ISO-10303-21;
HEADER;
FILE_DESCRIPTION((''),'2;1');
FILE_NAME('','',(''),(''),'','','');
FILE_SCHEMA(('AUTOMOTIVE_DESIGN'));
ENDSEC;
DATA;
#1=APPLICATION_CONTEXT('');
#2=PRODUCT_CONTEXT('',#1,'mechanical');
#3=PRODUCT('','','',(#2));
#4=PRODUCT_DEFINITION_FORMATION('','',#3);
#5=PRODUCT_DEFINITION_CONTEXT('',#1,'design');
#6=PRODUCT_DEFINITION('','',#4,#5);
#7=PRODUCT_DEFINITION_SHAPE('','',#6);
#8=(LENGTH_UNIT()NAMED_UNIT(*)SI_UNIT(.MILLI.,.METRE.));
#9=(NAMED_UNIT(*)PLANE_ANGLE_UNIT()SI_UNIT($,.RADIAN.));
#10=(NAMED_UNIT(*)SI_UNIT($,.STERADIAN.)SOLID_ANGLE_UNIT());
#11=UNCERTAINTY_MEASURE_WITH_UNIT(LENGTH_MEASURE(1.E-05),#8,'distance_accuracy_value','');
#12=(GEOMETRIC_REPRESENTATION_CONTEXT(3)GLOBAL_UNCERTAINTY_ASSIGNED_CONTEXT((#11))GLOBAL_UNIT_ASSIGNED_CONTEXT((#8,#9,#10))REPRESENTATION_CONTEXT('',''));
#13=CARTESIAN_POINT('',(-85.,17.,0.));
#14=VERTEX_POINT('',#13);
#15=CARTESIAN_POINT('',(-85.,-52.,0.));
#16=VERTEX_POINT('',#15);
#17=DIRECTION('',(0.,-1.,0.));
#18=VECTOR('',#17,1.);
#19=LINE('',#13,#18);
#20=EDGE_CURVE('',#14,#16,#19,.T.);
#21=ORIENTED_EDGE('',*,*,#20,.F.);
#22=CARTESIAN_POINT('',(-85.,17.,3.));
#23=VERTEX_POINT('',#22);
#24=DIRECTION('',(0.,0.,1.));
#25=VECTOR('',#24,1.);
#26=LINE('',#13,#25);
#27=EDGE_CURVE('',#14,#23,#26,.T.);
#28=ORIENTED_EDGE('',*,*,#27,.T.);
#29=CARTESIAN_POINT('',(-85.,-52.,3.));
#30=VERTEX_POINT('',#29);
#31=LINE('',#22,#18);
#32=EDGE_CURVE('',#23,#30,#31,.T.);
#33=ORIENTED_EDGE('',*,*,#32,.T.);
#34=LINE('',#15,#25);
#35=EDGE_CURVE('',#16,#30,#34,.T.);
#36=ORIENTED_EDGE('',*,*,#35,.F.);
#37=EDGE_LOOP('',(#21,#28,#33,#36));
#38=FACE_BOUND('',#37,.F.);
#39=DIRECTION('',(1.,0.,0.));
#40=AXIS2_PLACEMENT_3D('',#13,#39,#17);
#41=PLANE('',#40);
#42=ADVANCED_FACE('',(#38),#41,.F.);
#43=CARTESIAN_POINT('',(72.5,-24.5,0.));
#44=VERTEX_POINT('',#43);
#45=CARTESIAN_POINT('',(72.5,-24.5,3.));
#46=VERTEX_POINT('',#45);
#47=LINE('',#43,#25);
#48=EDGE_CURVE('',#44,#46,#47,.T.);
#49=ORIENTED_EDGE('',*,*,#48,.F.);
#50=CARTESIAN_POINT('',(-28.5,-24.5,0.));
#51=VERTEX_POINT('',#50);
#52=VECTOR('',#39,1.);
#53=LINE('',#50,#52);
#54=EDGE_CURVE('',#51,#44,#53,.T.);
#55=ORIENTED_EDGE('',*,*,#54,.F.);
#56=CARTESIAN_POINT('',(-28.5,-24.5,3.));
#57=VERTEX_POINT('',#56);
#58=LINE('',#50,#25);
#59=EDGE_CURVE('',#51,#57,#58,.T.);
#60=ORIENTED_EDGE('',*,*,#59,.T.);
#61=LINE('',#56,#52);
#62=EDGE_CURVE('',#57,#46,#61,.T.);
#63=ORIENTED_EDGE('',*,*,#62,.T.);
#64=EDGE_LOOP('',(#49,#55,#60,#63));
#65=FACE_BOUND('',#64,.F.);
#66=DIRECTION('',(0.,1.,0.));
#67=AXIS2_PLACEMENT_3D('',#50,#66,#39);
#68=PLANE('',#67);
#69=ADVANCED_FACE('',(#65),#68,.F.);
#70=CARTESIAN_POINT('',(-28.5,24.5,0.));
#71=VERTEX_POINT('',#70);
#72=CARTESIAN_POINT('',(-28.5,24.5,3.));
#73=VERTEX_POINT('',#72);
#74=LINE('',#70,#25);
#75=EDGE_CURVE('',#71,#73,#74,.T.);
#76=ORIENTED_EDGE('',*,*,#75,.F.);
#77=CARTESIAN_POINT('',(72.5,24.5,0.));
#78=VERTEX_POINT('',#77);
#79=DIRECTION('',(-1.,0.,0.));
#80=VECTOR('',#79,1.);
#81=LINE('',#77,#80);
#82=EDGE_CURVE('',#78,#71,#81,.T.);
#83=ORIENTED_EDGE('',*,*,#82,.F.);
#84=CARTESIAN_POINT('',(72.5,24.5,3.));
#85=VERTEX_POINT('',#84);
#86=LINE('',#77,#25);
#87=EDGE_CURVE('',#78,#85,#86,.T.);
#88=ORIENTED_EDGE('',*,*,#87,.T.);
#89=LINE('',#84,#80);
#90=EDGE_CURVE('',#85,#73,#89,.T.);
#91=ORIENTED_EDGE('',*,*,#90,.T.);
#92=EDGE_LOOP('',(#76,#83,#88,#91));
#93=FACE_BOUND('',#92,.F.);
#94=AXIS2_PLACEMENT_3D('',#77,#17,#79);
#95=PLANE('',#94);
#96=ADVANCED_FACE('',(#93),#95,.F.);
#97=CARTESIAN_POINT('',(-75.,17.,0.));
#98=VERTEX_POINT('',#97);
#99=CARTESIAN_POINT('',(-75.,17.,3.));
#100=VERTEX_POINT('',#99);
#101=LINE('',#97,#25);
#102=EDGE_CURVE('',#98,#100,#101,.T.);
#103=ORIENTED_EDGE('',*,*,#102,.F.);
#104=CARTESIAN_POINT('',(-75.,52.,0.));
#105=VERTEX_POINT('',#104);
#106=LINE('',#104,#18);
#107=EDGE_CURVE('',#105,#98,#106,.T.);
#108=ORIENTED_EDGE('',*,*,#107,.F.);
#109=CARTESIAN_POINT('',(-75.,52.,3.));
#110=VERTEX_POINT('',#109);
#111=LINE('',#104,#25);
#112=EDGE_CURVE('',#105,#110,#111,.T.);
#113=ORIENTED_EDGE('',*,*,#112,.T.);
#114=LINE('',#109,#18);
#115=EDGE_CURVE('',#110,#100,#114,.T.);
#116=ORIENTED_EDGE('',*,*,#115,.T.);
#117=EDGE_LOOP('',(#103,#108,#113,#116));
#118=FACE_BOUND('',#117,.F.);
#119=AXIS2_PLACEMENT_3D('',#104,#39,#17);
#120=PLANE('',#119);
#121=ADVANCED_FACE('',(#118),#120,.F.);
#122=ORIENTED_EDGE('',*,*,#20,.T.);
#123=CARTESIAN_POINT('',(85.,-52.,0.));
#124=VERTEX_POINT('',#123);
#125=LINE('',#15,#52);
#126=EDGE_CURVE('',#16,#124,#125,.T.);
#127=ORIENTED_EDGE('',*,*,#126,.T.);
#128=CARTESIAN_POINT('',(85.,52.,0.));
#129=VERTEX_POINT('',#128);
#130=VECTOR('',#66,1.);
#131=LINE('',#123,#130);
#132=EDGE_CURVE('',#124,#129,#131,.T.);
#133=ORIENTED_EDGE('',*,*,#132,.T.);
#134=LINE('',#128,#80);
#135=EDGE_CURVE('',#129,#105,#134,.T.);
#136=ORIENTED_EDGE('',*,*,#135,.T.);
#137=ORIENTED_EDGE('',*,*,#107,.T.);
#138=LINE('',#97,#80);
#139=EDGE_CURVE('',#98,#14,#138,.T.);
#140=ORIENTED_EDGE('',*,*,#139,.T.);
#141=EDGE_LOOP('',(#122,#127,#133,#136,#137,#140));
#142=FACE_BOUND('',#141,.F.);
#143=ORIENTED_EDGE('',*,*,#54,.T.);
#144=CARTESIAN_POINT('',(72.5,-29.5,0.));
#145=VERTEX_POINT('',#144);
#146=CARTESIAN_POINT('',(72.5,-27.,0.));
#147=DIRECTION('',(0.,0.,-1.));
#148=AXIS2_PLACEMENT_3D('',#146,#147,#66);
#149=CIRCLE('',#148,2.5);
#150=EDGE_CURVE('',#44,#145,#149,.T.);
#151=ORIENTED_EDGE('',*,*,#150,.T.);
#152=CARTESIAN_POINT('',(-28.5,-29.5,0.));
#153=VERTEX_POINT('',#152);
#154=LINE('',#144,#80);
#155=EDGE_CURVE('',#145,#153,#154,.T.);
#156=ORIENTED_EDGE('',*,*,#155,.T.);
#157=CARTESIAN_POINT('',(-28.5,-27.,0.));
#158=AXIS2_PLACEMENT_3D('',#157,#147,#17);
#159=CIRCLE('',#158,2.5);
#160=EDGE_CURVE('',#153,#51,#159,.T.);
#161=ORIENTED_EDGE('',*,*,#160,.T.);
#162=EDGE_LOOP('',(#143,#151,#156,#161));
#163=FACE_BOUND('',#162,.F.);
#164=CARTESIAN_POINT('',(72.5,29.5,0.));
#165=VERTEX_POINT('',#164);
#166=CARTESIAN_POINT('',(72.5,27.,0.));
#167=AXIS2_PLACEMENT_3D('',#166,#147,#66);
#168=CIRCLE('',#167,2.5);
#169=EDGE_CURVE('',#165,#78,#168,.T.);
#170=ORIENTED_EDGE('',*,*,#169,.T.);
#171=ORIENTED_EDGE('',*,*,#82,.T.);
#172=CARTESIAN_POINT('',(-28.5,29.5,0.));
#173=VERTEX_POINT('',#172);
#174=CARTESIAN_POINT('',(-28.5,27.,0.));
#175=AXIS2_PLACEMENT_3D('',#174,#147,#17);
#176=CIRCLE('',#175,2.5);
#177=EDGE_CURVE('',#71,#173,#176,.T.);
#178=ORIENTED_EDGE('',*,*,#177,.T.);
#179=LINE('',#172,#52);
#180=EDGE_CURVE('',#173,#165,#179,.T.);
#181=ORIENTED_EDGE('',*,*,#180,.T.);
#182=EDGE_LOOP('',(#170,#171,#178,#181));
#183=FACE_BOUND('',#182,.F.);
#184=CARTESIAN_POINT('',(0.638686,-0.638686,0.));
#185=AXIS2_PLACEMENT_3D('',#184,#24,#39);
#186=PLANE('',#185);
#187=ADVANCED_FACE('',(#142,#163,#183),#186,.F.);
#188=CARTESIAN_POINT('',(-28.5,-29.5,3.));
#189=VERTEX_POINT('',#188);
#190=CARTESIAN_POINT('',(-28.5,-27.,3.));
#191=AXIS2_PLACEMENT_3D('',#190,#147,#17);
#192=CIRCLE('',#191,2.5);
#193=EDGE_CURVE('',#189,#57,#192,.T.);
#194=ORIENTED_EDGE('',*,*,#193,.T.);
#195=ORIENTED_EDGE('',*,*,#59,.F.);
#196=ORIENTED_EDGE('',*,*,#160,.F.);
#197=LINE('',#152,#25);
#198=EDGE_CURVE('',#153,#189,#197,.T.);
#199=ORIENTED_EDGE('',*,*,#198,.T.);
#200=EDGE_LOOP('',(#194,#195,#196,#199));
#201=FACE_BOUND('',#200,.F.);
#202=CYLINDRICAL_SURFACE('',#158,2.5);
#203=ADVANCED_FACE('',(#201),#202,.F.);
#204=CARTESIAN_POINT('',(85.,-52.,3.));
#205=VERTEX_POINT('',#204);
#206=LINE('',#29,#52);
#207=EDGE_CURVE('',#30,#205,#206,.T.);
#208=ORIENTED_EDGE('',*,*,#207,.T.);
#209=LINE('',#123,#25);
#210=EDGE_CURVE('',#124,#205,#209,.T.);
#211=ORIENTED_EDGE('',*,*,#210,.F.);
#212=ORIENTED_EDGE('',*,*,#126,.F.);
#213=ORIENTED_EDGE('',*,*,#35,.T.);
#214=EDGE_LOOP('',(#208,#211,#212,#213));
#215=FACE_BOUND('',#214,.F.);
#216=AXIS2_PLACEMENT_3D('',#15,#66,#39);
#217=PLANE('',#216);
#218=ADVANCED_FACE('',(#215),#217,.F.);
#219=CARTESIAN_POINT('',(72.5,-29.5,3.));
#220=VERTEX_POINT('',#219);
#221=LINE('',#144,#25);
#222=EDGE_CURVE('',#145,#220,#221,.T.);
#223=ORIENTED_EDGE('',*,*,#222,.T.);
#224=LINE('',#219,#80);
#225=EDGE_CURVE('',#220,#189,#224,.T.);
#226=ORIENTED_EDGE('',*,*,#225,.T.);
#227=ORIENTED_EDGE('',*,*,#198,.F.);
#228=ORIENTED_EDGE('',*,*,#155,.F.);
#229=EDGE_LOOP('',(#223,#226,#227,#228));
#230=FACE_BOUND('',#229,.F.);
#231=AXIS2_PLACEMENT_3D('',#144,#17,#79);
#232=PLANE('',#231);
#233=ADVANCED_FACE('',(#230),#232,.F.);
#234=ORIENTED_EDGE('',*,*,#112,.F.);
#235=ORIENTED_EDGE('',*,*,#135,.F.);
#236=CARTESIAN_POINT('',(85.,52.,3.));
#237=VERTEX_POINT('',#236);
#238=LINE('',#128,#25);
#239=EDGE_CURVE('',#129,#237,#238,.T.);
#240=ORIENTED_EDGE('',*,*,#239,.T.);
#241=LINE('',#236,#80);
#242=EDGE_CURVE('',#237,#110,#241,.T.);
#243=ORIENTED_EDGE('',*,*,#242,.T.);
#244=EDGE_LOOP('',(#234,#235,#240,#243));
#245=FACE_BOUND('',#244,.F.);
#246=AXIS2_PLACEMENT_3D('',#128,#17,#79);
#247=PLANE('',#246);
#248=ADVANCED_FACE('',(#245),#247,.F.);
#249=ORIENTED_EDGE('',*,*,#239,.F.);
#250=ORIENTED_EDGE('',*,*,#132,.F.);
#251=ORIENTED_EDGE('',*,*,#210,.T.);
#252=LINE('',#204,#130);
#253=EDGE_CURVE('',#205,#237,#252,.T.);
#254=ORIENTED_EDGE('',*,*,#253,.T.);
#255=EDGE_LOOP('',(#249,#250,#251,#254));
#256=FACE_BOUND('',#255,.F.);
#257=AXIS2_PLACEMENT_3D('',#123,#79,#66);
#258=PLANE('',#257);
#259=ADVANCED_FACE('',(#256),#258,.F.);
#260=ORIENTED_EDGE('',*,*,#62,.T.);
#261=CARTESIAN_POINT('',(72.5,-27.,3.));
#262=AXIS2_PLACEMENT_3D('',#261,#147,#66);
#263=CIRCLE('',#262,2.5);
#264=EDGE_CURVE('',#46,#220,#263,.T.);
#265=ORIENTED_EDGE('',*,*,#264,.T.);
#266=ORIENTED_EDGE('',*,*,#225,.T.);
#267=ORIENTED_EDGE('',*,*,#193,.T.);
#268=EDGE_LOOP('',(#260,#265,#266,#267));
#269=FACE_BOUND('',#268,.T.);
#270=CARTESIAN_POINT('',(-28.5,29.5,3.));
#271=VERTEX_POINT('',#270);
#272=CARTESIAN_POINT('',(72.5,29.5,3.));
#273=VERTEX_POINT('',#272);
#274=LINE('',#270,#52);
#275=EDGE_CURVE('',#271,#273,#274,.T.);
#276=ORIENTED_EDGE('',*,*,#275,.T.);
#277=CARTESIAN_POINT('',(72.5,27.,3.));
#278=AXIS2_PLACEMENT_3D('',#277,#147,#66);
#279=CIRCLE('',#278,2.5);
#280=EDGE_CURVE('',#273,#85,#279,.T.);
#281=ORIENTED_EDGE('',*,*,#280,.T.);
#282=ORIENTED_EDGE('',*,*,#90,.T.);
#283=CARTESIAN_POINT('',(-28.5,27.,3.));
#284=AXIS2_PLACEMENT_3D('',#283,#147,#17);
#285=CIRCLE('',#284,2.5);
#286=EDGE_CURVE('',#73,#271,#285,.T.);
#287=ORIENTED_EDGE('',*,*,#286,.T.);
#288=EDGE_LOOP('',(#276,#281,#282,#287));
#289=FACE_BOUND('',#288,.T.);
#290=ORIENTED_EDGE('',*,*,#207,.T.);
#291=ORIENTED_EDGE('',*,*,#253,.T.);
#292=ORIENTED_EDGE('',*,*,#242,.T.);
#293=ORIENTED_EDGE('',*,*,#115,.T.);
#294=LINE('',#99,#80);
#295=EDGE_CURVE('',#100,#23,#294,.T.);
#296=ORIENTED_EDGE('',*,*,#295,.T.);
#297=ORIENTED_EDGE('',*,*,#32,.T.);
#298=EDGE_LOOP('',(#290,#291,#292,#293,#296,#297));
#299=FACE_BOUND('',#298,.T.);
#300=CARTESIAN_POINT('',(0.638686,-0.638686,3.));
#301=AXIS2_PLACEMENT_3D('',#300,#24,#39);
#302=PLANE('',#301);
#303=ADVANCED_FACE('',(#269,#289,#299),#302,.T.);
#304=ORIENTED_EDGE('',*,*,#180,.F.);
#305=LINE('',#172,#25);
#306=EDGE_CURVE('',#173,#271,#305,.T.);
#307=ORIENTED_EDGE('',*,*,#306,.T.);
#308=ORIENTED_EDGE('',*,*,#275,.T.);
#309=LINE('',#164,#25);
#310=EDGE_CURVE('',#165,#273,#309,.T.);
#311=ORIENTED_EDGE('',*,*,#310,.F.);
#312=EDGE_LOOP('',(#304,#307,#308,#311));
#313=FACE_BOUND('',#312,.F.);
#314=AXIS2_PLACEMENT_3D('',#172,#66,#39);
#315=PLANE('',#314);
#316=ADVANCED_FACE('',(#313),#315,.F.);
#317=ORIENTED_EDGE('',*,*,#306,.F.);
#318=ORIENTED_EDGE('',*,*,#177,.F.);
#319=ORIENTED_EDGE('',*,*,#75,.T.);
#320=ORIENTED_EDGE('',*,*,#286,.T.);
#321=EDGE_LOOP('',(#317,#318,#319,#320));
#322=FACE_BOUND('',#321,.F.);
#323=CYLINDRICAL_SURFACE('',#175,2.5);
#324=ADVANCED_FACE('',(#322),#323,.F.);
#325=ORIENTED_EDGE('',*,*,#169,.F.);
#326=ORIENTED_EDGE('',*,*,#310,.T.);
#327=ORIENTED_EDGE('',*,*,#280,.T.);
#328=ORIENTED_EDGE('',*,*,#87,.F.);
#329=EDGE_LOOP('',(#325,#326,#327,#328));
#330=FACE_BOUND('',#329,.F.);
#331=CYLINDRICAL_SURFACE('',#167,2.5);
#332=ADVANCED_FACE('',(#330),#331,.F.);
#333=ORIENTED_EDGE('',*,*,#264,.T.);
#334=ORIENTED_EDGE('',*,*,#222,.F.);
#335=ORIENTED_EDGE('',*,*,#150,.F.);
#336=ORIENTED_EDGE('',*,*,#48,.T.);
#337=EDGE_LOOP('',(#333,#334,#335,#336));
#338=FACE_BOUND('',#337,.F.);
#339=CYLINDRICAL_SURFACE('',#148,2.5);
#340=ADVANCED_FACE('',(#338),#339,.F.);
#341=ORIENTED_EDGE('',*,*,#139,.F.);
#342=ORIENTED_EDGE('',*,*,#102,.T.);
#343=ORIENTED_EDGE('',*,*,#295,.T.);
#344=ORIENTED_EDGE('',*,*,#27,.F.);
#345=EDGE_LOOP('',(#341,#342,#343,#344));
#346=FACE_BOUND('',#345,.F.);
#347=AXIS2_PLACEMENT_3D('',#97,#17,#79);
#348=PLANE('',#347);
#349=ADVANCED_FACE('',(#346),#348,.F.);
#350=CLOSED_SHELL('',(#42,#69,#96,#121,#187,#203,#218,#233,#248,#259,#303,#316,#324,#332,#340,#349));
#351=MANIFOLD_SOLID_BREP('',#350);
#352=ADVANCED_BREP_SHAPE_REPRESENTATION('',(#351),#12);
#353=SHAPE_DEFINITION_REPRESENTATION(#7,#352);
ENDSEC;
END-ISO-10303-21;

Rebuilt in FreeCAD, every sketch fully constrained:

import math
import FreeCAD as App
import Part
import Sketcher


def add_polygon(sketch, points):
    """Adds a closed chain of lines whose ends are joined by coincident constraints."""
    first, n = sketch.GeometryCount, len(points)
    for a, b in zip(points, points[1:] + points[:1]):
        sketch.addGeometry(Part.LineSegment(App.Vector(*a, 0), App.Vector(*b, 0)), False)
    for i in range(n):
        sketch.addConstraint(Sketcher.Constraint("Coincident", first + i, 2, first + (i + 1) % n, 1))

doc = App.newDocument("Part")
body = doc.addObject("PartDesign::Body", "Body")

sketch1 = doc.addObject("Sketcher::SketchObject", "Sketch")
body.addObject(sketch1)
sketch1.AttachmentSupport = (doc.XY_Plane, [""])
sketch1.MapMode = "FlatFace"
add_polygon(sketch1, [(85, 52), (-75, 52), (-75, 17), (-85, 17), (-85, -52), (85, -52)])
sketch1.addGeometry(Part.LineSegment(App.Vector(-28.5, -24.5, 0), App.Vector(72.5, -24.5, 0)), False)
sketch1.addGeometry(Part.ArcOfCircle(Part.Circle(App.Vector(72.5, -27, 0), App.Vector(0, 0, 1), 2.5), math.radians(-90), math.radians(90)), False)
sketch1.addGeometry(Part.LineSegment(App.Vector(72.5, -29.5, 0), App.Vector(-28.5, -29.5, 0)), False)
sketch1.addGeometry(Part.ArcOfCircle(Part.Circle(App.Vector(-28.5, -27, 0), App.Vector(0, 0, 1), 2.5), math.radians(90), math.radians(270)), False)
sketch1.addGeometry(Part.ArcOfCircle(Part.Circle(App.Vector(-28.5, 27, 0), App.Vector(0, 0, 1), 2.5), math.radians(90), math.radians(270)), False)
sketch1.addGeometry(Part.LineSegment(App.Vector(-28.5, 29.5, 0), App.Vector(72.5, 29.5, 0)), False)
sketch1.addGeometry(Part.ArcOfCircle(Part.Circle(App.Vector(72.5, 27, 0), App.Vector(0, 0, 1), 2.5), math.radians(-90), math.radians(90)), False)
sketch1.addGeometry(Part.LineSegment(App.Vector(72.5, 24.5, 0), App.Vector(-28.5, 24.5, 0)), False)
sketch1.addConstraint(Sketcher.Constraint("Tangent", 6, 2, 7, 2))
sketch1.addConstraint(Sketcher.Constraint("Tangent", 7, 1, 8, 1))
sketch1.addConstraint(Sketcher.Constraint("Tangent", 8, 2, 9, 2))
sketch1.addConstraint(Sketcher.Constraint("Tangent", 9, 1, 6, 1))
sketch1.addConstraint(Sketcher.Constraint("Tangent", 10, 1, 11, 1))
sketch1.addConstraint(Sketcher.Constraint("Tangent", 11, 2, 12, 2))
sketch1.addConstraint(Sketcher.Constraint("Tangent", 12, 1, 13, 1))
sketch1.addConstraint(Sketcher.Constraint("Tangent", 13, 2, 10, 2))
sketch1.addConstraint(Sketcher.Constraint("Horizontal", 0))
sketch1.addConstraint(Sketcher.Constraint("Vertical", 1))
sketch1.addConstraint(Sketcher.Constraint("Horizontal", 2))
sketch1.addConstraint(Sketcher.Constraint("Vertical", 3))
sketch1.addConstraint(Sketcher.Constraint("Horizontal", 4))
sketch1.addConstraint(Sketcher.Constraint("Vertical", 5))
sketch1.addConstraint(Sketcher.Constraint("Horizontal", 6))
sketch1.addConstraint(Sketcher.Constraint("Horizontal", 8))
sketch1.addConstraint(Sketcher.Constraint("Horizontal", 11))
sketch1.addConstraint(Sketcher.Constraint("Horizontal", 13))
sketch1.addConstraint(Sketcher.Constraint("Equal", 9, 10))
sketch1.addConstraint(Sketcher.Constraint("Symmetric", 3, 2, 5, 2, -1, 1))
sketch1.addConstraint(Sketcher.Constraint("Symmetric", 9, 3, 10, 3, -1))
sketch1.addConstraint(Sketcher.Constraint("Vertical", 7, 3, 12, 3))
sketch1.addConstraint(Sketcher.Constraint("Radius", 7, 2.5))
sketch1.addConstraint(Sketcher.Constraint("DistanceX", 0, 2, 0, 1, 160.0))
sketch1.addConstraint(Sketcher.Constraint("DistanceX", 2, 2, 2, 1, 10.0))
sketch1.addConstraint(Sketcher.Constraint("DistanceX", 6, 1, 6, 2, 101.0))
sketch1.addConstraint(Sketcher.Constraint("DistanceY", 1, 2, 1, 1, 35.0))
sketch1.addConstraint(Sketcher.Constraint("DistanceY", 3, 2, 3, 1, 69.0))
sketch1.addConstraint(Sketcher.Constraint("DistanceY", 7, 3, -1, 1, 27.0))
sketch1.addConstraint(Sketcher.Constraint("DistanceX", -1, 1, 7, 3, 72.5))
pad1 = doc.addObject("PartDesign::Pad", "Pad")
body.addObject(pad1)
pad1.Profile = sketch1
pad1.Length = 3

doc.recompute()
